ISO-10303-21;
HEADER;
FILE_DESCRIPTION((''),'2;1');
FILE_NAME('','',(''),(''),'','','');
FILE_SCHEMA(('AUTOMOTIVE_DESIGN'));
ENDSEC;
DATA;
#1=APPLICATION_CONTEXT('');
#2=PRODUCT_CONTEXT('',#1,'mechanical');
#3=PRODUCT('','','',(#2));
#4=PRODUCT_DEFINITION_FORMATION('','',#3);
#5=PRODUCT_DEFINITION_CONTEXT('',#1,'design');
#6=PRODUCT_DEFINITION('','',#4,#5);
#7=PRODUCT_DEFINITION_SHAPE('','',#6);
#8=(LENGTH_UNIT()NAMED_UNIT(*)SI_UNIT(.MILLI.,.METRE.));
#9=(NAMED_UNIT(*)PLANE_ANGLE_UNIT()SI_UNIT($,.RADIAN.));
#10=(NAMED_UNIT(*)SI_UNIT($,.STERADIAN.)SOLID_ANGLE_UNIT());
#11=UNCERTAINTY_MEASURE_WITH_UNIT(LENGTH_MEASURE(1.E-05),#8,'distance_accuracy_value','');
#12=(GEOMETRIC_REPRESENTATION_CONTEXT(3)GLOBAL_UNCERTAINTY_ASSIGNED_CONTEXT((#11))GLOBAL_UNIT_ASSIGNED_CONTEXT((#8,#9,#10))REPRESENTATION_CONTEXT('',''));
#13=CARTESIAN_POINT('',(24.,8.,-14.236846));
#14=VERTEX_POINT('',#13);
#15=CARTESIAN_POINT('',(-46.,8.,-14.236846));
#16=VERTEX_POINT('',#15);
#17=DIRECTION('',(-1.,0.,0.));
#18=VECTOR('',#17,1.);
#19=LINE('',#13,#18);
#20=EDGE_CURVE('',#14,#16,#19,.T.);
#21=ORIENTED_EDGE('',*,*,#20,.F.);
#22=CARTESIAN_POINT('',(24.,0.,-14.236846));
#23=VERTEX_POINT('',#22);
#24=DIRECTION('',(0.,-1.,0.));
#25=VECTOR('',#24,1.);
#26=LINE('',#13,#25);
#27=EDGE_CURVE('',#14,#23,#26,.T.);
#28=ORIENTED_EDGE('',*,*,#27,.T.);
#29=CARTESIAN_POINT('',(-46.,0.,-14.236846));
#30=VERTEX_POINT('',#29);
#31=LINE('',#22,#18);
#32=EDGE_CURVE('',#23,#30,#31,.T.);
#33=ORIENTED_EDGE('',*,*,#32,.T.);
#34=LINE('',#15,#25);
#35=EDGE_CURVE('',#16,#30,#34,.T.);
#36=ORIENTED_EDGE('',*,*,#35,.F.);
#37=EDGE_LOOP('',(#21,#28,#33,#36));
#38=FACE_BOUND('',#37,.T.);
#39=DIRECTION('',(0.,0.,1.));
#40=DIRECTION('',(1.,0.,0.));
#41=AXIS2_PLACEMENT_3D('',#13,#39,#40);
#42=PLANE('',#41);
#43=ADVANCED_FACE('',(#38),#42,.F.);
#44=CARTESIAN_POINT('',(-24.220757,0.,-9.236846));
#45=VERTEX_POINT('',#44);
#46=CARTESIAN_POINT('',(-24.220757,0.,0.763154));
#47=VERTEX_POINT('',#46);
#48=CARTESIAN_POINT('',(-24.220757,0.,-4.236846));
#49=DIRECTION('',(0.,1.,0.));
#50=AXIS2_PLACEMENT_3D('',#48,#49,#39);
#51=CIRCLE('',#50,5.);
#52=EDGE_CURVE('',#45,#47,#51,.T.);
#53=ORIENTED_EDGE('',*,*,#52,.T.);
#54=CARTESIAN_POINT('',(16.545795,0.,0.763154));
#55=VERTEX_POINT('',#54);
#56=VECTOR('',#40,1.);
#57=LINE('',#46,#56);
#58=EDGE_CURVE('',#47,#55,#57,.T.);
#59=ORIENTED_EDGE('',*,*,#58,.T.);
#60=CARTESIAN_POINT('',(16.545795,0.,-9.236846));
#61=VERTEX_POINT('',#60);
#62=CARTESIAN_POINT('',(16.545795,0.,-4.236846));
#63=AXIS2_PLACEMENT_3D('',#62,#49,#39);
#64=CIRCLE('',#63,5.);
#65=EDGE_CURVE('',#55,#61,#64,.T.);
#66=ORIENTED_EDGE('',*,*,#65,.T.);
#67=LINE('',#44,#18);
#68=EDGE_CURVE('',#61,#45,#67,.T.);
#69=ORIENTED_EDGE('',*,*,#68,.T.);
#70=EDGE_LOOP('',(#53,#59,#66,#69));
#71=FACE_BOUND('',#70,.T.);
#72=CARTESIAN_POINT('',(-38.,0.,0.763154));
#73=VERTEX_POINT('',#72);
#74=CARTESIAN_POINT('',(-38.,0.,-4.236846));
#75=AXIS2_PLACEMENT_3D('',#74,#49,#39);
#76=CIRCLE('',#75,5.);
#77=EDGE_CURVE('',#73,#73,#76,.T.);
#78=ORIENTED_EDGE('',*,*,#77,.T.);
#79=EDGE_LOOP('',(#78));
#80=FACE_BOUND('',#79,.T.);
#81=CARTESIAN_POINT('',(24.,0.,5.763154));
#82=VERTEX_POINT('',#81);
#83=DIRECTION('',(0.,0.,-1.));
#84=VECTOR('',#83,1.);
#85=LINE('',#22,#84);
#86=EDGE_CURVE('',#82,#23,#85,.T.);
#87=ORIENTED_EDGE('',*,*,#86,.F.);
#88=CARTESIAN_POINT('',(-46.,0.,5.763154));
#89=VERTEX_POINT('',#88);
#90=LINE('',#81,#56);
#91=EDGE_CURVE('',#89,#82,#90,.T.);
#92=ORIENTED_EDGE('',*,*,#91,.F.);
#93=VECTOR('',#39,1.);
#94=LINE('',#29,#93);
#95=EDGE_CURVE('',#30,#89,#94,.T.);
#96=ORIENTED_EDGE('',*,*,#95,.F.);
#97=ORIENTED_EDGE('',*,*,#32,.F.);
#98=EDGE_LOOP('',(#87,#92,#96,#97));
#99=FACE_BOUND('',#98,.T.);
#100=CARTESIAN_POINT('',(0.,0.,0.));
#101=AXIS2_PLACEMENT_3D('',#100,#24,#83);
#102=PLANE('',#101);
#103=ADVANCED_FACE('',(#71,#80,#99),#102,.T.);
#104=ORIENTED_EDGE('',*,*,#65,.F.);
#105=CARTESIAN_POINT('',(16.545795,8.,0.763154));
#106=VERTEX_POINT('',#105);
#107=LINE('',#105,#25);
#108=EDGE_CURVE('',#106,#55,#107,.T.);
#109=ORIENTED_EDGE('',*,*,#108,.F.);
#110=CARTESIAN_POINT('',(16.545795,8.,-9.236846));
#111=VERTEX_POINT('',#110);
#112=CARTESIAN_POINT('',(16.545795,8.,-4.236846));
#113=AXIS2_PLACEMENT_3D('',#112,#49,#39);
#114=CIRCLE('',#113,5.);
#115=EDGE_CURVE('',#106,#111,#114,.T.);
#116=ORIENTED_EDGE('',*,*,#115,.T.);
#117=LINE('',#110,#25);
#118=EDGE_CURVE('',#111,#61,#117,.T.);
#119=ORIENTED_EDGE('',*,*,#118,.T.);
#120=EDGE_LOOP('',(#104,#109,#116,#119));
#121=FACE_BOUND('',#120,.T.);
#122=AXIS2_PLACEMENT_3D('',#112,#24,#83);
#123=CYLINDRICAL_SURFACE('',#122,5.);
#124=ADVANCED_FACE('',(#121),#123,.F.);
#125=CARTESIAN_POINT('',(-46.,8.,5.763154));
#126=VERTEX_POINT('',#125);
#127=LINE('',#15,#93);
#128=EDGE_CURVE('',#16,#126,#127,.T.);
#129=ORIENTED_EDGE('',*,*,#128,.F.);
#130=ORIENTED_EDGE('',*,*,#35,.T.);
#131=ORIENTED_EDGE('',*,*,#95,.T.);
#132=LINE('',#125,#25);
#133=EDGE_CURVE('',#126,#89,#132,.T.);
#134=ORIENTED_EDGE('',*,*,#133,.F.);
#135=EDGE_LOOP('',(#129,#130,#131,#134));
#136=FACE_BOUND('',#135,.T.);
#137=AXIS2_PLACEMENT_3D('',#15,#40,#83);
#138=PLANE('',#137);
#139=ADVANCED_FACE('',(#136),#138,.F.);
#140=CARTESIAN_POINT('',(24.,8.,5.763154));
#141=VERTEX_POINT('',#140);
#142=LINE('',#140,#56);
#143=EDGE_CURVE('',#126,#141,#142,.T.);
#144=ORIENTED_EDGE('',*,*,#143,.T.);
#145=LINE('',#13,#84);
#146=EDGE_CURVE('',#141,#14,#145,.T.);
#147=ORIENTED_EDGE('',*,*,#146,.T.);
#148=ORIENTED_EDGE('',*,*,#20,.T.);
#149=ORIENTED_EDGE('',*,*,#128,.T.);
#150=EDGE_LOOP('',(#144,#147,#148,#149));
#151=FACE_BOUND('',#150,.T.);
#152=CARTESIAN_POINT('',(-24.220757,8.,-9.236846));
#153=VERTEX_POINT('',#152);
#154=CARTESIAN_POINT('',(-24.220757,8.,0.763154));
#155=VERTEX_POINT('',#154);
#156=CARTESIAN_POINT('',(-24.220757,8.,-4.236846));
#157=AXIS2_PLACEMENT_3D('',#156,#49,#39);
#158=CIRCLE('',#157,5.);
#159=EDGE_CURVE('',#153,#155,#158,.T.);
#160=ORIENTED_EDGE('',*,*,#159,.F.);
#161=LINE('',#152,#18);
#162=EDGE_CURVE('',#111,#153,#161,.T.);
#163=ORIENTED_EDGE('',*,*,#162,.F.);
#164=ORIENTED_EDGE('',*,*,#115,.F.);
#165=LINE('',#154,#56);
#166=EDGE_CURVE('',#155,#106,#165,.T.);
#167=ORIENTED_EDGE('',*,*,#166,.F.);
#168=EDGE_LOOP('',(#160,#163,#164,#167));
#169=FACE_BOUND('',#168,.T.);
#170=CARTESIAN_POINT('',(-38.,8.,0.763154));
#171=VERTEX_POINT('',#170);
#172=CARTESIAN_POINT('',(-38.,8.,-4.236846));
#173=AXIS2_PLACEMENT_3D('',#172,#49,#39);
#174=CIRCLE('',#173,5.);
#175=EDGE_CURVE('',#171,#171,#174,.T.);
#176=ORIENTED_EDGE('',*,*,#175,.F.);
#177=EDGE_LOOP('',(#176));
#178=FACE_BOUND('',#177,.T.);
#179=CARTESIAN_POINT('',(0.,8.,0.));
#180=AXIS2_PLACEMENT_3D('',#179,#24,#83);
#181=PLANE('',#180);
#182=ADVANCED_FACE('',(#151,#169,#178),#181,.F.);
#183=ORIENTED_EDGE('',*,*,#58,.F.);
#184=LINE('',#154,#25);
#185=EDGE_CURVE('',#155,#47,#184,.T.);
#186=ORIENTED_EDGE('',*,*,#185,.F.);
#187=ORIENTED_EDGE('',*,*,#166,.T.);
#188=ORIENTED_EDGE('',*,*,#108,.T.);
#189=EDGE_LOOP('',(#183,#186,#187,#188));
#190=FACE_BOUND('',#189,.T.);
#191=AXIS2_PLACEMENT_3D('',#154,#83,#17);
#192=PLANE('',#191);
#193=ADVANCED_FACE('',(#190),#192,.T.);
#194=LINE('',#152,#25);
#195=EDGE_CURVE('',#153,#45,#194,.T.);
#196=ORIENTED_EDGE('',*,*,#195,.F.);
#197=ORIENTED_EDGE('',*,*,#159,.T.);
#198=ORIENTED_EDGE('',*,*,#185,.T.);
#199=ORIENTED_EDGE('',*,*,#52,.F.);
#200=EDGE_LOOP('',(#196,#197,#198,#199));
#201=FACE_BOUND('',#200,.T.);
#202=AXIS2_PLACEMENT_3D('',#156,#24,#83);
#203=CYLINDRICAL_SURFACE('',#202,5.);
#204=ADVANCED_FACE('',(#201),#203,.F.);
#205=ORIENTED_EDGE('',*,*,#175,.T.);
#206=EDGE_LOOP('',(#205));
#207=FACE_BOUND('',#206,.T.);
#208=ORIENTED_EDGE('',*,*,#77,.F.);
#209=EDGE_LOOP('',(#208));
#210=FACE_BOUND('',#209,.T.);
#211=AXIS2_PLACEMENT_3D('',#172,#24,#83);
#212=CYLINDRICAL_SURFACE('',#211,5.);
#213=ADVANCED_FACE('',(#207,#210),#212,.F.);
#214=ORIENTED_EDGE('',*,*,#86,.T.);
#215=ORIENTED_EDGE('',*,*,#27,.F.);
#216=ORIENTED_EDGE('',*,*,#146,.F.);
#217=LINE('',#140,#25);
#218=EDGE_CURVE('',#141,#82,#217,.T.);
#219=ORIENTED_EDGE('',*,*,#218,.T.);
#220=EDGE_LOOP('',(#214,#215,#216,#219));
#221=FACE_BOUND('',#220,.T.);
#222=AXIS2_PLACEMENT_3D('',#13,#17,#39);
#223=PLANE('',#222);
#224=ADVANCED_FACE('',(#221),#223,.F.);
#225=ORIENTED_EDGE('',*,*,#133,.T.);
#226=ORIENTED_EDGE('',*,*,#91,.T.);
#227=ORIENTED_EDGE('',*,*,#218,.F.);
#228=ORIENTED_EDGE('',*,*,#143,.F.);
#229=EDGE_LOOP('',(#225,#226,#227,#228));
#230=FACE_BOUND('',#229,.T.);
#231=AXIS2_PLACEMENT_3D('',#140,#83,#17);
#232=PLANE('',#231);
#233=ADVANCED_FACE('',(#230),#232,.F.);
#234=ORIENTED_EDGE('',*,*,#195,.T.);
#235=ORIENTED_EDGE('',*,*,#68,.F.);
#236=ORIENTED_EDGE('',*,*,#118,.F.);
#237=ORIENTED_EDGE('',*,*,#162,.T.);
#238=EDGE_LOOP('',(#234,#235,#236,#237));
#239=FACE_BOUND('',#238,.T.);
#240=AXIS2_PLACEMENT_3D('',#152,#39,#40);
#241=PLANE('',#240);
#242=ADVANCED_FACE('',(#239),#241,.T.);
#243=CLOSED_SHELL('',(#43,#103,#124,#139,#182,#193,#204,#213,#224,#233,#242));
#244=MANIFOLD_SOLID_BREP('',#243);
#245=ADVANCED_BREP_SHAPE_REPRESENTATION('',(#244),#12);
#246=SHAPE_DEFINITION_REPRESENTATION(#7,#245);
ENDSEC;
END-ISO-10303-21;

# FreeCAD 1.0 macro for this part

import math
import FreeCAD as App
import Part
import Sketcher
from FreeCAD import Vector


def add_polygon(sketch, points):
    """Adds a closed chain of lines whose ends are joined by coincident constraints."""
    first, n = sketch.GeometryCount, len(points)
    for a, b in zip(points, points[1:] + points[:1]):
        sketch.addGeometry(Part.LineSegment(App.Vector(*a, 0), App.Vector(*b, 0)), False)
    for i in range(n):
        sketch.addConstraint(Sketcher.Constraint("Coincident", first + i, 2, first + (i + 1) % n, 1))

doc = App.newDocument("Part")
body = doc.addObject("PartDesign::Body", "Body")

sketch1 = body.newObject("Sketcher::SketchObject", "Sketch")
sketch1.AttachmentSupport = (doc.getObject("XZ_Plane"), [""])
sketch1.MapMode = "FlatFace"
add_polygon(sketch1, [(-46, -14), (-46, 6), (24, 6), (24, -14)])
sketch1.addGeometry(Part.Circle(Vector(-38, -4, 0), Vector(0, 0, 1), 5), False)
sketch1.addGeometry(Part.ArcOfCircle(Part.Circle(Vector(-24, -4, 0), Vector(0, 0, 1), 5), math.radians(90), math.radians(270)), False)
sketch1.addGeometry(Part.LineSegment(Vector(-24, -9, 0), Vector(17, -9, 0)), False)
sketch1.addGeometry(Part.ArcOfCircle(Part.Circle(Vector(17, -4, 0), Vector(0, 0, 1), 5), math.radians(-90), math.radians(90)), False)
sketch1.addGeometry(Part.LineSegment(Vector(17, 1, 0), Vector(-24, 1, 0)), False)
sketch1.addConstraint([
    Sketcher.Constraint("Tangent", 5, 2, 6, 1),
    Sketcher.Constraint("Tangent", 6, 2, 7, 1),
    Sketcher.Constraint("Tangent", 7, 2, 8, 1),
    Sketcher.Constraint("Tangent", 8, 2, 5, 1),
    Sketcher.Constraint("Vertical", 0),
    Sketcher.Constraint("Horizontal", 1),
    Sketcher.Constraint("Vertical", 2),
    Sketcher.Constraint("Horizontal", 3),
    Sketcher.Constraint("Horizontal", 6),
    Sketcher.Constraint("Horizontal", 8),
    Sketcher.Constraint("Equal", 4, 5),
    Sketcher.Constraint("Horizontal", 4, 3, 5, 3),
    Sketcher.Constraint("Diameter", 4, 10.0),
    Sketcher.Constraint("DistanceX", 1, 1, 1, 2, 70.0),
    Sketcher.Constraint("DistanceY", 0, 1, 0, 2, 20.0),
    Sketcher.Constraint("DistanceX", 4, 3, -1, 1, 38.0),
    Sketcher.Constraint("DistanceX", 0, 2, -1, 1, 46.0),
    Sketcher.Constraint("DistanceY", 4, 3, 0, 2, 10.0),
    Sketcher.Constraint("DistanceX", 6, 1, 6, 2, 40.766552),
    Sketcher.Constraint("DistanceY", 4, 3, -1, 1, 4.236846),
    Sketcher.Constraint("DistanceX", 5, 3, -1, 1, 24.220757),
])
pad1 = body.newObject("PartDesign::Pad", "Pad")
pad1.Profile = sketch1
pad1.Length = 8
pad1.Reversed = True

doc.recompute()
